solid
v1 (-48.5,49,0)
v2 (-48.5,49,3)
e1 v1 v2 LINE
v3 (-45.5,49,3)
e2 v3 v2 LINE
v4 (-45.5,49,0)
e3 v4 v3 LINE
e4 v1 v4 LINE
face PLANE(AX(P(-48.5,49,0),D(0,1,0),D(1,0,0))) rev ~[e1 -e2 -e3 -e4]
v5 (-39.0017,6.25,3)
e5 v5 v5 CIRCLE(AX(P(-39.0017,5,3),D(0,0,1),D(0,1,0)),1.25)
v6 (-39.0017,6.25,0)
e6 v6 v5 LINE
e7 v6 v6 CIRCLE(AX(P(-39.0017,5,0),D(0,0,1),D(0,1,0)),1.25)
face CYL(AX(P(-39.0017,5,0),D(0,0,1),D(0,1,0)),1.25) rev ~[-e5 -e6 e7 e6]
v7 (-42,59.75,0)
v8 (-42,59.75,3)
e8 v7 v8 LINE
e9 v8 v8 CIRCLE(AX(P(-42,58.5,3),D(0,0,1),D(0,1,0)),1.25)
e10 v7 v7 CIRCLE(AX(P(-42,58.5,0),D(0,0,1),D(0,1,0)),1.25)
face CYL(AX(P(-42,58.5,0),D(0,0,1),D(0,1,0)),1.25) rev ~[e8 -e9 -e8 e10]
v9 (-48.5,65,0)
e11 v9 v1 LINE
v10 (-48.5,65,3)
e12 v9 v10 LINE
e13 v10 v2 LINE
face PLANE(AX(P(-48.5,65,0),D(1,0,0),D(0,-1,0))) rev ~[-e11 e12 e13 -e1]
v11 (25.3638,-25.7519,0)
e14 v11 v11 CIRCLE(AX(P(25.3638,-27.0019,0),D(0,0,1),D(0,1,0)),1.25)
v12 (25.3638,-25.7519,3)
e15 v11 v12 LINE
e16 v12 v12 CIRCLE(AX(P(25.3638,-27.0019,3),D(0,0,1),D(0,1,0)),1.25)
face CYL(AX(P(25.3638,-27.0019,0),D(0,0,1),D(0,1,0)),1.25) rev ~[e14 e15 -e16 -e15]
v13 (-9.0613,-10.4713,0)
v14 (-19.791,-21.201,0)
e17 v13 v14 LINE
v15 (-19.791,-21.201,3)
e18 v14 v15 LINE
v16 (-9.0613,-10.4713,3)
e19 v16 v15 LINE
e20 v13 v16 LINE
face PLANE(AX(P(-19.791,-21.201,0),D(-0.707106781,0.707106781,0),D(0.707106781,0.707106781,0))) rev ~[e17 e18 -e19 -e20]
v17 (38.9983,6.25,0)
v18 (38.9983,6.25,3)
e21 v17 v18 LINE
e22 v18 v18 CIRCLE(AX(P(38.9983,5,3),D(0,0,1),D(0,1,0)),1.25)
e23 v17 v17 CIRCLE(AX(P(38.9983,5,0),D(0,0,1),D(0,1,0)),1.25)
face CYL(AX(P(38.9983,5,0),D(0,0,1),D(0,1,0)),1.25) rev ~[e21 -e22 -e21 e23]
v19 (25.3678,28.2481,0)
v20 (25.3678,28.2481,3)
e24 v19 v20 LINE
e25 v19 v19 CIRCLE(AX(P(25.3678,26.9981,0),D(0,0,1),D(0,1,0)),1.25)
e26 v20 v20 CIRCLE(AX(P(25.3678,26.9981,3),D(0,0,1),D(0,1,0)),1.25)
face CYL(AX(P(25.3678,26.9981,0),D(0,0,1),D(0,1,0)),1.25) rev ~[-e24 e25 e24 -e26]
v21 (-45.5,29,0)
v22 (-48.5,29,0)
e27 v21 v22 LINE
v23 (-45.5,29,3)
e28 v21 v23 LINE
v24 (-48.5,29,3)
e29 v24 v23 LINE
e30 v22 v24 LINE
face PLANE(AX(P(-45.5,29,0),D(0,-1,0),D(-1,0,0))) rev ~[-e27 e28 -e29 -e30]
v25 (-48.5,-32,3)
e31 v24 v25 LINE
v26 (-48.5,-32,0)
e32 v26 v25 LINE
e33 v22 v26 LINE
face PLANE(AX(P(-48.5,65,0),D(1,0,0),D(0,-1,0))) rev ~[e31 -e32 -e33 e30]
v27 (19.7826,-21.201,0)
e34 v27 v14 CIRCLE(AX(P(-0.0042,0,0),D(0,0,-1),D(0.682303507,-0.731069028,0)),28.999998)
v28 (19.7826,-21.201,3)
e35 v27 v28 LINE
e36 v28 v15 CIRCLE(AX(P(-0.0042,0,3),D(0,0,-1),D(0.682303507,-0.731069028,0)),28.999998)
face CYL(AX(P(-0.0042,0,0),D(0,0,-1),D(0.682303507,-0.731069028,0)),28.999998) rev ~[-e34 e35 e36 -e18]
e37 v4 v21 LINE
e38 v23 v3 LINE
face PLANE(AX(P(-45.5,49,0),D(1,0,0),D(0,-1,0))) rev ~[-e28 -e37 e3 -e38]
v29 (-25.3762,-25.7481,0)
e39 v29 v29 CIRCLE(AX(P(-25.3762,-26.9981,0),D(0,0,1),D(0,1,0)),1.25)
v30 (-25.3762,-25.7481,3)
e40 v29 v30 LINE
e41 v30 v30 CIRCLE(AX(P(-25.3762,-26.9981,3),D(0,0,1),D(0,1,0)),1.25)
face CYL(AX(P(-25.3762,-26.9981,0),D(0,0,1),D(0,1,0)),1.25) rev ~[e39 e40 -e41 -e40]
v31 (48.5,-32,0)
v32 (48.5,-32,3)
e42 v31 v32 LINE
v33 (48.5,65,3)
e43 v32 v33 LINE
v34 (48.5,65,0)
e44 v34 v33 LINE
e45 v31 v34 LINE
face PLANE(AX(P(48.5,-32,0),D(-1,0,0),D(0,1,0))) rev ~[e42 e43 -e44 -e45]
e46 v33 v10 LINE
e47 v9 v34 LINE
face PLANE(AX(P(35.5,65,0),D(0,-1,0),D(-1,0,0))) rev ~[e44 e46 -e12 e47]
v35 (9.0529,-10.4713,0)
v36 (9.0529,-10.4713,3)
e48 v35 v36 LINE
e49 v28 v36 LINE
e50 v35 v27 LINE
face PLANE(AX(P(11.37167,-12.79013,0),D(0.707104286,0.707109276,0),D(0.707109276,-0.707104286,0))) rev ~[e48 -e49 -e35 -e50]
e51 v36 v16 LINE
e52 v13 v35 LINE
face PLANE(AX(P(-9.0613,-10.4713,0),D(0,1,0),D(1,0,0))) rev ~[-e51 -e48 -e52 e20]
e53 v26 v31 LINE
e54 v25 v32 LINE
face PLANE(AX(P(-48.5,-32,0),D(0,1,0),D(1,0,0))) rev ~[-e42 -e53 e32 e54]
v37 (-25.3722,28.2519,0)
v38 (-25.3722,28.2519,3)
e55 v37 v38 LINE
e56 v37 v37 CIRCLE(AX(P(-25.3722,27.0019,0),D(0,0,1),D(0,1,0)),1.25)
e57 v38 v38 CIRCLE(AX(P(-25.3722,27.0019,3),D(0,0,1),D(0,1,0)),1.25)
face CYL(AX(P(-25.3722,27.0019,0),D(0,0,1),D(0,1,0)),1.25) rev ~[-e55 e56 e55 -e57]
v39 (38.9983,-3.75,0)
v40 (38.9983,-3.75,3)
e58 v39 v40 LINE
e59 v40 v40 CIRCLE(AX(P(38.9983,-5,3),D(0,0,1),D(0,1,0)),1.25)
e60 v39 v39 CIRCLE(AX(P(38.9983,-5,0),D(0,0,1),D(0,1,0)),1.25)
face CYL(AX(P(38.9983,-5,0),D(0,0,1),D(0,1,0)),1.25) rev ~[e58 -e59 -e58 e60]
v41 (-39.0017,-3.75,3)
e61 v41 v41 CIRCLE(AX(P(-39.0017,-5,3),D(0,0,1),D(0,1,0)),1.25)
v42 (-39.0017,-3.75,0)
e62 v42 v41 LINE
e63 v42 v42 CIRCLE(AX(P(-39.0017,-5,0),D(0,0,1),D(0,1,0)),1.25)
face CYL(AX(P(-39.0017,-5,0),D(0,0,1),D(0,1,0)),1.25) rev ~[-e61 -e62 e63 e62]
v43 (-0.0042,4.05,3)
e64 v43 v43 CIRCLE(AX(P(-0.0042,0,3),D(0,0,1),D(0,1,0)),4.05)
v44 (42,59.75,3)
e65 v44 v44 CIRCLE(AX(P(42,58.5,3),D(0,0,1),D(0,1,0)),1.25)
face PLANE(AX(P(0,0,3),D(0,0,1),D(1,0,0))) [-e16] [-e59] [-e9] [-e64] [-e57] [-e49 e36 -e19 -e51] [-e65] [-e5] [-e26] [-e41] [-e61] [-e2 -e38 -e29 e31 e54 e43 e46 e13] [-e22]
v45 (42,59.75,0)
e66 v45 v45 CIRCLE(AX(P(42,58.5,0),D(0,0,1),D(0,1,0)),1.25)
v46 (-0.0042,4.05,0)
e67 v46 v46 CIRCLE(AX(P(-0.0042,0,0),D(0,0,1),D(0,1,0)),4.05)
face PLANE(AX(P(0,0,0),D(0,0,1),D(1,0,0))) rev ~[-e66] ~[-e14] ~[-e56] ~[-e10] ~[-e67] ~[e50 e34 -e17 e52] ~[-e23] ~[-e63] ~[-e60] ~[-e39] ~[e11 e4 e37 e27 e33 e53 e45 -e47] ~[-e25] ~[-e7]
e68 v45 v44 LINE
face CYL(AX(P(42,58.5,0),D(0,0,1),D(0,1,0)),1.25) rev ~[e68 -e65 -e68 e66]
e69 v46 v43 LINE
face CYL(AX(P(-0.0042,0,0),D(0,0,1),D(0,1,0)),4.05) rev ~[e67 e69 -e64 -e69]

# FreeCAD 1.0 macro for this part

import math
import FreeCAD as App
import Part
import Sketcher
Q = App.Units.Quantity


def add_polygon(sketch, points):
    """Adds a closed chain of lines whose ends are joined by coincident constraints."""
    first, n = sketch.GeometryCount, len(points)
    for a, b in zip(points, points[1:] + points[:1]):
        sketch.addGeometry(Part.LineSegment(App.Vector(*a, 0), App.Vector(*b, 0)), False)
    for i in range(n):
        sketch.addConstraint(Sketcher.Constraint("Coincident", first + i, 2, first + (i + 1) % n, 1))

doc = App.newDocument("Part")
body = doc.addObject("PartDesign::Body", "Body")

# Sketch on XY plane
sketch1 = doc.addObject("Sketcher::SketchObject", "Sketch")
body.addObject(sketch1)
sketch1.AttachmentSupport = (doc.XY_Plane, [""])
sketch1.MapMode = "FlatFace"
add_polygon(sketch1, [(-48, -32), (48, -32), (48, 65), (-48, 65)])  # lines 0-3
sketch1.addConstraint(Sketcher.Constraint("Horizontal", 0))
sketch1.addConstraint(Sketcher.Constraint("Vertical", 1))
sketch1.addConstraint(Sketcher.Constraint("Horizontal", 2))
sketch1.addConstraint(Sketcher.Constraint("Vertical", 3))
sketch1.addConstraint(Sketcher.Constraint("Equal", 2, 1))
sketch1.addConstraint(Sketcher.Constraint("DistanceX", 0, 1, 0, 2, Q("97 mm")))
sketch1.addConstraint(Sketcher.Constraint("DistanceY", 0, 2, -1, 1, Q("32 mm")))
sketch1.addConstraint(Sketcher.Constraint("DistanceX", -1, 1, 0, 2, Q("48.5 mm")))
pad1 = doc.addObject("PartDesign::Pad", "Pad")
body.addObject(pad1)
pad1.Profile = sketch1
pad1.Length = 3

# Sketch on XY plane
sketch2 = doc.addObject("Sketcher::SketchObject", "Sketch001")
body.addObject(sketch2)
sketch2.AttachmentSupport = (doc.XY_Plane, [""])
sketch2.MapMode = "FlatFace"
sketch2.addGeometry(Part.LineSegment(App.Vector(-20, -21, 0), App.Vector(-9, -10, 0)), False)
sketch2.addGeometry(Part.LineSegment(App.Vector(-9, -10, 0), App.Vector(9, -10, 0)), False)
sketch2.addGeometry(Part.LineSegment(App.Vector(9, -10, 0), App.Vector(20, -21, 0)), False)
sketch2.addGeometry(Part.ArcOfCircle(Part.Circle(App.Vector(0, 0, 0), App.Vector(0, 0, 1), 29), math.radians(-133), math.radians(-47)), False)
sketch2.addConstraint(Sketcher.Constraint("Coincident", 0, 2, 1, 1))
sketch2.addConstraint(Sketcher.Constraint("Coincident", 1, 2, 2, 1))
sketch2.addConstraint(Sketcher.Constraint("Coincident", 2, 2, 3, 2))
sketch2.addConstraint(Sketcher.Constraint("Coincident", 3, 1, 0, 1))
sketch2.addConstraint(Sketcher.Constraint("Horizontal", 1))
sketch2.addConstraint(Sketcher.Constraint("PointOnObject", 3, 3, -1))
sketch2.addConstraint(Sketcher.Constraint("Perpendicular", 0, 2))
sketch2.addConstraint(Sketcher.Constraint("Horizontal", 2, 2, 3, 1))
sketch2.addConstraint(Sketcher.Constraint("Equal", 0, 2))
sketch2.addConstraint(Sketcher.Constraint("Radius", 3, Q("29 mm")))
sketch2.addConstraint(Sketcher.Constraint("Distance", 0, Q("15.174 mm")))
sketch2.addConstraint(Sketcher.Constraint("DistanceX", 1, 1, 1, 2, Q("18.1142 mm")))
sketch2.addConstraint(Sketcher.Constraint("DistanceX", -1, 1, 1, 2, Q("9.053 mm")))
pocket1 = doc.addObject("PartDesign::Pocket", "Pocket")
body.addObject(pocket1)
pocket1.Profile = sketch2
pocket1.Type = "ThroughAll"
pocket1.Reversed = True

# Sketch on XY plane
sketch3 = doc.addObject("Sketcher::SketchObject", "Sketch002")
body.addObject(sketch3)
sketch3.AttachmentSupport = (doc.XY_Plane, [""])
sketch3.MapMode = "FlatFace"
sketch3.addGeometry(Part.Circle(App.Vector(0, 0, 0), App.Vector(0, 0, 1), 4), False)
sketch3.addConstraint(Sketcher.Constraint("PointOnObject", 0, 3, -1))
sketch3.addConstraint(Sketcher.Constraint("Diameter", 0, Q("8.1 mm")))
sketch3.addConstraint(Sketcher.Constraint("DistanceX", 0, 3, -1, 1, Q("0.0042 mm")))
doc.recompute()
hole = doc.addObject("PartDesign::Hole", "Hole")
body.addObject(hole)
hole.Profile = sketch3
hole.ThreadType = "None"
hole.Diameter = 8.1
hole.DepthType = "ThroughAll"
hole.Reversed = True

# Sketch on XY plane
sketch4 = doc.addObject("Sketcher::SketchObject", "Sketch003")
body.addObject(sketch4)
sketch4.AttachmentSupport = (doc.XY_Plane, [""])
sketch4.MapMode = "FlatFace"
sketch4.addGeometry(Part.Circle(App.Vector(-25.4, -27, 0), App.Vector(0, 0, 1), 1.2), False)
sketch4.addGeometry(Part.Circle(App.Vector(25.4, -27, 0), App.Vector(0, 0, 1), 1.2), False)
sketch4.addGeometry(Part.Circle(App.Vector(25.4, 27, 0), App.Vector(0, 0, 1), 1.2), False)
sketch4.addGeometry(Part.Circle(App.Vector(-25.4, 27, 0), App.Vector(0, 0, 1), 1.2), False)
sketch4.addGeometry(Part.Circle(App.Vector(42, 58.5, 0), App.Vector(0, 0, 1), 1.2), False)
sketch4.addGeometry(Part.Circle(App.Vector(-42, 58.5, 0), App.Vector(0, 0, 1), 1.2), False)
sketch4.addGeometry(Part.Circle(App.Vector(39, -5, 0), App.Vector(0, 0, 1), 1.2), False)
sketch4.addGeometry(Part.Circle(App.Vector(39, 5, 0), App.Vector(0, 0, 1), 1.2), False)
sketch4.addGeometry(Part.Circle(App.Vector(-39, -5, 0), App.Vector(0, 0, 1), 1.2), False)
sketch4.addGeometry(Part.Circle(App.Vector(-39, 5, 0), App.Vector(0, 0, 1), 1.2), False)
sketch4.addConstraint(Sketcher.Constraint("Equal", 0, 1))
sketch4.addConstraint(Sketcher.Constraint("Equal", 1, 2))
sketch4.addConstraint(Sketcher.Constraint("Equal", 2, 3))
sketch4.addConstraint(Sketcher.Constraint("Equal", 3, 4))
sketch4.addConstraint(Sketcher.Constraint("Equal", 4, 5))
sketch4.addConstraint(Sketcher.Constraint("Equal", 5, 6))
sketch4.addConstraint(Sketcher.Constraint("Equal", 6, 7))
sketch4.addConstraint(Sketcher.Constraint("Equal", 7, 8))
sketch4.addConstraint(Sketcher.Constraint("Equal", 8, 9))
sketch4.addConstraint(Sketcher.Constraint("Symmetric", 4, 3, 5, 3, -2))
sketch4.addConstraint(Sketcher.Constraint("Symmetric", 6, 3, 7, 3, -1))
sketch4.addConstraint(Sketcher.Constraint("Symmetric", 8, 3, 9, 3, -1))
sketch4.addConstraint(Sketcher.Constraint("Horizontal", 6, 3, 8, 3))
sketch4.addConstraint(Sketcher.Constraint("Diameter", 0, Q("2.5 mm")))
sketch4.addConstraint(Sketcher.Constraint("DistanceX", -1, 1, 4, 3, Q("42 mm")))
sketch4.addConstraint(Sketcher.Constraint("DistanceY", 6, 3, -1, 1, Q("5 mm")))
sketch4.addConstraint(Sketcher.Constraint("DistanceY", 1, 3, 2, 3, Q("54 mm")))
sketch4.addConstraint(Sketcher.Constraint("DistanceY", 0, 3, 3, 3, Q("54 mm")))
sketch4.addConstraint(Sketcher.Constraint("DistanceY", -1, 1, 4, 3, Q("58.5 mm")))
sketch4.addConstraint(Sketcher.Constraint("DistanceX", 0, 3, 1, 3, Q("50.74 mm")))
sketch4.addConstraint(Sketcher.Constraint("DistanceX", 3, 3, 2, 3, Q("50.74 mm")))
sketch4.addConstraint(Sketcher.Constraint("DistanceY", 0, 3, -1, 1, Q("26.998 mm")))
sketch4.addConstraint(Sketcher.Constraint("DistanceY", 1, 3, -1, 1, Q("27.002 mm")))
sketch4.addConstraint(Sketcher.Constraint("DistanceX", 1, 3, 2, 3, Q("0.004 mm")))
sketch4.addConstraint(Sketcher.Constraint("DistanceX", 0, 3, -1, 1, Q("25.3762 mm")))
sketch4.addConstraint(Sketcher.Constraint("DistanceX", -1, 1, 6, 3, Q("38.9983 mm")))
sketch4.addConstraint(Sketcher.Constraint("DistanceX", 8, 3, -1, 1, Q("39.0017 mm")))
doc.recompute()
hole2 = doc.addObject("PartDesign::Hole", "Hole001")
body.addObject(hole2)
hole2.Profile = sketch4
hole2.ThreadType = "None"
hole2.Diameter = 2.5
hole2.DepthType = "ThroughAll"
hole2.Reversed = True

# Sketch on XY plane
sketch5 = doc.addObject("Sketcher::SketchObject", "Sketch004")
body.addObject(sketch5)
sketch5.AttachmentSupport = (doc.XY_Plane, [""])
sketch5.MapMode = "FlatFace"
add_polygon(sketch5, [(-48.5, 29), (-48.5, 49), (-45.5, 49), (-45.5, 29)])  # lines 0-3
sketch5.addConstraint(Sketcher.Constraint("Vertical", 0))
sketch5.addConstraint(Sketcher.Constraint("Horizontal", 1))
sketch5.addConstraint(Sketcher.Constraint("Vertical", 2))
sketch5.addConstraint(Sketcher.Constraint("Horizontal", 3))
sketch5.addConstraint(Sketcher.Constraint("DistanceX", 1, 1, 1, 2, Q("3 mm")))
sketch5.addConstraint(Sketcher.Constraint("DistanceY", 0, 1, 0, 2, Q("20 mm")))
sketch5.addConstraint(Sketcher.Constraint("DistanceY", -1, 1, 0, 2, Q("49 mm")))
sketch5.addConstraint(Sketcher.Constraint("DistanceX", 0, 2, -1, 1, Q("48.5 mm")))
pocket2 = doc.addObject("PartDesign::Pocket", "Pocket001")
body.addObject(pocket2)
pocket2.Profile = sketch5
pocket2.Length = 10
pocket2.Reversed = True

doc.recompute()
